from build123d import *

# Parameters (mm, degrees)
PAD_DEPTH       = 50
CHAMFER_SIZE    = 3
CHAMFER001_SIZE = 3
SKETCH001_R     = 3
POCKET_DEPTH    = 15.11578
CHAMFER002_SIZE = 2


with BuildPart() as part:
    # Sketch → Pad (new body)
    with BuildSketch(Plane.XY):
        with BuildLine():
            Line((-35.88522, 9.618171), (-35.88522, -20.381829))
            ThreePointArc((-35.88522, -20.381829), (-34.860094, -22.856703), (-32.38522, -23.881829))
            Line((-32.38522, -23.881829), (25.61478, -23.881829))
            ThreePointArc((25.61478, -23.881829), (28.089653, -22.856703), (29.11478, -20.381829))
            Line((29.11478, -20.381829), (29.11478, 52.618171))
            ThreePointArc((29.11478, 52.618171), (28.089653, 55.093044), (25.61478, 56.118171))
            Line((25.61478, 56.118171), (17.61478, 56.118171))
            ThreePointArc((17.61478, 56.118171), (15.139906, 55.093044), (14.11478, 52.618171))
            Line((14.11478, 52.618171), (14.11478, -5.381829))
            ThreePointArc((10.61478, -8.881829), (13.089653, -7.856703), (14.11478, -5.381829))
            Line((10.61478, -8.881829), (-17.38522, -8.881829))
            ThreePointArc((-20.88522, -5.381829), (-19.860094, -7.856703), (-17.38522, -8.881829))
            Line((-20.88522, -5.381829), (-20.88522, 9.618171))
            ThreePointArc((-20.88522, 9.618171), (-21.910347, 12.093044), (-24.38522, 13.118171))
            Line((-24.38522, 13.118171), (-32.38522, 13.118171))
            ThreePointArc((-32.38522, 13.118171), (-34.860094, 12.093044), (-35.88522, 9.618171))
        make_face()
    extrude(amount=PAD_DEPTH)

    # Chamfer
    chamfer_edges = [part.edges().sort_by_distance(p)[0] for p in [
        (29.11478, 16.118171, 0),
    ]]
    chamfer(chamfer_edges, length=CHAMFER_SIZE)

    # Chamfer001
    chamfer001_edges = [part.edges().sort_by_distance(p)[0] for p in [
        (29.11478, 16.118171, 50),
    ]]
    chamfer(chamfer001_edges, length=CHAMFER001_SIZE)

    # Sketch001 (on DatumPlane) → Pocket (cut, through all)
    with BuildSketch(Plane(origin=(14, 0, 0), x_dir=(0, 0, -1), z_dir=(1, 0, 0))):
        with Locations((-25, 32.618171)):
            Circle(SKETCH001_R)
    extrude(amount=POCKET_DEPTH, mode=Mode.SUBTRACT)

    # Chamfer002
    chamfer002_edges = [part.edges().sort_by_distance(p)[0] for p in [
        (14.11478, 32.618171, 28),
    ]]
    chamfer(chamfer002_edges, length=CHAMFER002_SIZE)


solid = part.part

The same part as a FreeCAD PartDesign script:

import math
import FreeCAD as App
import Part
import Sketcher


def edges_at(feature, points):
    """Names of the edges that pass closest to the given points."""
    edges = feature.Shape.Edges
    near = lambda p: min(range(len(edges)), key=lambda i: edges[i].distToShape(Part.Vertex(*p))[0])
    return sorted({f"Edge{near(p) + 1}" for p in points})

doc = App.newDocument("Part")
params = doc.addObject("Spreadsheet::Sheet", "Params")
for row, (alias, value) in enumerate([
    ("sketch1_radius", "3.499999 mm"),
    ("sketch1_width", "58 mm"),
    ("sketch1_width2", "8 mm"),
    ("sketch1_height", "30 mm"),
    ("sketch1_height2", "73 mm"),
    ("pad1_length", "50 mm"),
    ("chamfer_size", "3 mm"),
    ("chamfer2_size", "3 mm"),
    ("sketch2_diameter", "6 mm"),
    ("chamfer3_size", "2 mm"),
], start=1):
    params.set(f"A{row}", alias)
    params.set(f"B{row}", "=" + value)
    params.setAlias(f"B{row}", alias)

body = doc.addObject("PartDesign::Body", "Body")

# Sketch on XY plane
sketch1 = doc.addObject("Sketcher::SketchObject", "Sketch")
body.addObject(sketch1)
sketch1.AttachmentSupport = (doc.XY_Plane, [""])
sketch1.MapMode = "FlatFace"
sketch1.addGeometry(Part.LineSegment(App.Vector(-35.9, 9.6, 0), App.Vector(-35.9, -20.4, 0)), False)
sketch1.addGeometry(Part.ArcOfCircle(Part.Circle(App.Vector(-32.4, -20.4, 0), App.Vector(0, 0, 1), 3.5), math.radians(180), math.radians(270)), False)
sketch1.addGeometry(Part.LineSegment(App.Vector(-32.4, -23.9, 0), App.Vector(25.6, -23.9, 0)), False)
sketch1.addGeometry(Part.ArcOfCircle(Part.Circle(App.Vector(25.6, -20.4, 0), App.Vector(0, 0, 1), 3.5), math.radians(-90), math.radians(0)), False)
sketch1.addGeometry(Part.LineSegment(App.Vector(29.1, -20.4, 0), App.Vector(29.1, 52.6, 0)), False)
sketch1.addGeometry(Part.ArcOfCircle(Part.Circle(App.Vector(25.6, 52.6, 0), App.Vector(0, 0, 1), 3.5), math.radians(0), math.radians(90)), False)
sketch1.addGeometry(Part.LineSegment(App.Vector(25.6, 56.1, 0), App.Vector(17.6, 56.1, 0)), False)
sketch1.addGeometry(Part.ArcOfCircle(Part.Circle(App.Vector(17.6, 52.6, 0), App.Vector(0, 0, 1), 3.5), math.radians(90), math.radians(180)), False)
sketch1.addGeometry(Part.LineSegment(App.Vector(14.1, 52.6, 0), App.Vector(14.1, -5.4, 0)), False)
sketch1.addGeometry(Part.ArcOfCircle(Part.Circle(App.Vector(10.6, -5.4, 0), App.Vector(0, 0, 1), 3.5), math.radians(-90), math.radians(0)), False)
sketch1.addGeometry(Part.LineSegment(App.Vector(10.6, -8.9, 0), App.Vector(-17.4, -8.9, 0)), False)
sketch1.addGeometry(Part.ArcOfCircle(Part.Circle(App.Vector(-17.4, -5.4, 0), App.Vector(0, 0, 1), 3.5), math.radians(180), math.radians(270)), False)
sketch1.addGeometry(Part.LineSegment(App.Vector(-20.9, -5.4, 0), App.Vector(-20.9, 9.6, 0)), False)
sketch1.addGeometry(Part.ArcOfCircle(Part.Circle(App.Vector(-24.4, 9.6, 0), App.Vector(0, 0, 1), 3.5), math.radians(0), math.radians(90)), False)
sketch1.addGeometry(Part.LineSegment(App.Vector(-24.4, 13.1, 0), App.Vector(-32.4, 13.1, 0)), False)
sketch1.addGeometry(Part.ArcOfCircle(Part.Circle(App.Vector(-32.4, 9.6, 0), App.Vector(0, 0, 1), 3.5), math.radians(90), math.radians(180)), False)
sketch1.addConstraint(Sketcher.Constraint("Tangent", 0, 2, 1, 1))
sketch1.addConstraint(Sketcher.Constraint("Tangent", 1, 2, 2, 1))
sketch1.addConstraint(Sketcher.Constraint("Tangent", 2, 2, 3, 1))
sketch1.addConstraint(Sketcher.Constraint("Tangent", 3, 2, 4, 1))
sketch1.addConstraint(Sketcher.Constraint("Tangent", 4, 2, 5, 1))
sketch1.addConstraint(Sketcher.Constraint("Tangent", 5, 2, 6, 1))
sketch1.addConstraint(Sketcher.Constraint("Tangent", 6, 2, 7, 1))
sketch1.addConstraint(Sketcher.Constraint("Tangent", 7, 2, 8, 1))
sketch1.addConstraint(Sketcher.Constraint("Tangent", 8, 2, 9, 2))
sketch1.addConstraint(Sketcher.Constraint("Tangent", 9, 1, 10, 1))
sketch1.addConstraint(Sketcher.Constraint("Tangent", 10, 2, 11, 2))
sketch1.addConstraint(Sketcher.Constraint("Tangent", 11, 1, 12, 1))
sketch1.addConstraint(Sketcher.Constraint("Tangent", 12, 2, 13, 1))
sketch1.addConstraint(Sketcher.Constraint("Tangent", 13, 2, 14, 1))
sketch1.addConstraint(Sketcher.Constraint("Tangent", 14, 2, 15, 1))
sketch1.addConstraint(Sketcher.Constraint("Tangent", 15, 2, 0, 1))
sketch1.addConstraint(Sketcher.Constraint("Vertical", 0))
sketch1.addConstraint(Sketcher.Constraint("Horizontal", 2))
sketch1.addConstraint(Sketcher.Constraint("Vertical", 4))
sketch1.addConstraint(Sketcher.Constraint("Horizontal", 6))
sketch1.addConstraint(Sketcher.Constraint("Vertical", 8))
sketch1.addConstraint(Sketcher.Constraint("Horizontal", 10))
sketch1.addConstraint(Sketcher.Constraint("Vertical", 12))
sketch1.addConstraint(Sketcher.Constraint("Horizontal", 14))
sketch1.addConstraint(Sketcher.Constraint("Equal", 1, 3))
sketch1.addConstraint(Sketcher.Constraint("Equal", 3, 5))
sketch1.addConstraint(Sketcher.Constraint("Equal", 5, 7))
sketch1.addConstraint(Sketcher.Constraint("Equal", 7, 9))
sketch1.addConstraint(Sketcher.Constraint("Equal", 9, 11))
sketch1.addConstraint(Sketcher.Constraint("Equal", 9, 13))
sketch1.addConstraint(Sketcher.Constraint("Equal", 13, 15))
sketch1.addConstraint(Sketcher.Constraint("Equal", 6, 14))
sketch1.addConstraint(Sketcher.Constraint("Equal", 2, 8))
sketch1.addConstraint(Sketcher.Constraint("Radius", 1, 3.499999))
sketch1.addConstraint(Sketcher.Constraint("DistanceX", 2, 1, 2, 2, 58.0))
sketch1.addConstraint(Sketcher.Constraint("DistanceX", 6, 2, 6, 1, 8.0))
sketch1.addConstraint(Sketcher.Constraint("DistanceY", 0, 2, 0, 1, 30.0))
sketch1.addConstraint(Sketcher.Constraint("DistanceY", 4, 1, 4, 2, 73.0))
sketch1.addConstraint(Sketcher.Constraint("DistanceX", 1, 3, -1, 1, 32.385221))
sketch1.addConstraint(Sketcher.Constraint("DistanceY", 1, 3, -1, 1, 20.38183))
sketch1.setExpression("Constraints[33]", "Params.sketch1_radius")
sketch1.setExpression("Constraints[34]", "Params.sketch1_width")
sketch1.setExpression("Constraints[35]", "Params.sketch1_width2")
sketch1.setExpression("Constraints[36]", "Params.sketch1_height")
sketch1.setExpression("Constraints[37]", "Params.sketch1_height2")
pad1 = doc.addObject("PartDesign::Pad", "Pad")
body.addObject(pad1)
pad1.Profile = sketch1
pad1.setExpression("Length", "Params.pad1_length")
doc.recompute()

chamfer = doc.addObject("PartDesign::Chamfer", "Chamfer")
body.addObject(chamfer)
chamfer.Base = (pad1, edges_at(pad1, [(29.115, 16.118, 0)]))
chamfer.setExpression("Size", "Params.chamfer_size")
doc.recompute()

chamfer2 = doc.addObject("PartDesign::Chamfer", "Chamfer001")
body.addObject(chamfer2)
chamfer2.Base = (chamfer, edges_at(chamfer, [(29.115, 16.118, 50)]))
chamfer2.setExpression("Size", "Params.chamfer2_size")

# Sketch on YZ plane
sketch2 = doc.addObject("Sketcher::SketchObject", "Sketch001")
body.addObject(sketch2)
sketch2.AttachmentSupport = (doc.YZ_Plane, [""])
sketch2.MapMode = "FlatFace"
sketch2.AttachmentOffset = App.Placement(App.Vector(0, 0, 14), App.Rotation())
sketch2.addGeometry(Part.Circle(App.Vector(32.6, 25, 0), App.Vector(0, 0, 1), 3), False)
sketch2.addConstraint(Sketcher.Constraint("Diameter", 0, 6.0))
sketch2.addConstraint(Sketcher.Constraint("DistanceY", -1, 1, 0, 3, 25.0))
sketch2.addConstraint(Sketcher.Constraint("DistanceX", -1, 1, 0, 3, 32.618171))
sketch2.setExpression("Constraints[0]", "Params.sketch2_diameter")
pocket1 = doc.addObject("PartDesign::Pocket", "Pocket")
body.addObject(pocket1)
pocket1.Profile = sketch2
pocket1.Type = "ThroughAll"
pocket1.Reversed = True
doc.recompute()

chamfer3 = doc.addObject("PartDesign::Chamfer", "Chamfer002")
body.addObject(chamfer3)
chamfer3.Base = (pocket1, edges_at(pocket1, [(14.115, 32.618, 28)]))
chamfer3.setExpression("Size", "Params.chamfer3_size")

doc.recompute()
